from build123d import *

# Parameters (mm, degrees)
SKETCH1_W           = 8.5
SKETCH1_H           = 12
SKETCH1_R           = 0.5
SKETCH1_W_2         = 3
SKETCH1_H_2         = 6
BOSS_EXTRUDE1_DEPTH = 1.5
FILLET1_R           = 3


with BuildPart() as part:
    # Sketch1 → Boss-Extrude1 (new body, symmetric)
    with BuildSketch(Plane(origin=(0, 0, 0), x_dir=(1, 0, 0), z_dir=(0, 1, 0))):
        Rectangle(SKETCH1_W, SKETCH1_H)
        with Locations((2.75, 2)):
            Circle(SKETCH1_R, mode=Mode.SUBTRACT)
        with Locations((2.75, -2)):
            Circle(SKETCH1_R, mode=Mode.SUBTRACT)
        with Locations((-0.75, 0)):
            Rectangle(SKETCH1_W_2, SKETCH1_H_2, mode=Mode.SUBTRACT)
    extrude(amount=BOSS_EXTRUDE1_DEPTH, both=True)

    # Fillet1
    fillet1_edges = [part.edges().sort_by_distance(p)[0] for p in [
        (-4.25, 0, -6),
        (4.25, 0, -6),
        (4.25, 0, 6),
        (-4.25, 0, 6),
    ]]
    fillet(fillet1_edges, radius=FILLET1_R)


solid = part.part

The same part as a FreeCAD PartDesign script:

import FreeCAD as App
import Part
import Sketcher
Q = App.Units.Quantity


def edges_at(feature, points):
    """Names of the edges that pass closest to the given points."""
    edges = feature.Shape.Edges
    near = lambda p: min(range(len(edges)), key=lambda i: edges[i].distToShape(Part.Vertex(*p))[0])
    return sorted({f"Edge{near(p) + 1}" for p in points})

doc = App.newDocument("Part")
body = doc.addObject("PartDesign::Body", "Body")

sketch1 = body.newObject("Sketcher::SketchObject", "Sketch")
sketch1.AttachmentSupport = (doc.getObject("XZ_Plane"), [""])
sketch1.MapMode = "FlatFace"
sketch1.addGeometry(Part.LineSegment(App.Vector(-4.2, -6, 0), App.Vector(-4.2, 6, 0)), False)
sketch1.addGeometry(Part.LineSegment(App.Vector(-4.2, 6, 0), App.Vector(4.2, 6, 0)), False)
sketch1.addGeometry(Part.LineSegment(App.Vector(4.2, 6, 0), App.Vector(4.2, -6, 0)), False)
sketch1.addGeometry(Part.LineSegment(App.Vector(4.2, -6, 0), App.Vector(-4.2, -6, 0)), False)
sketch1.addGeometry(Part.Circle(App.Vector(2.8, 2, 0), App.Vector(0, 0, 1), 0.5), False)
sketch1.addGeometry(Part.LineSegment(App.Vector(0.8, 3, 0), App.Vector(-2.2, 3, 0)), False)
sketch1.addGeometry(Part.LineSegment(App.Vector(-2.2, 3, 0), App.Vector(-2.2, -3, 0)), False)
sketch1.addGeometry(Part.LineSegment(App.Vector(-2.2, -3, 0), App.Vector(0.8, -3, 0)), False)
sketch1.addGeometry(Part.LineSegment(App.Vector(0.8, -3, 0), App.Vector(0.8, 3, 0)), False)
sketch1.addGeometry(Part.Circle(App.Vector(2.8, -2, 0), App.Vector(0, 0, 1), 0.5), False)
sketch1.addConstraint(Sketcher.Constraint("Coincident", 0, 2, 1, 1))
sketch1.addConstraint(Sketcher.Constraint("Coincident", 1, 2, 2, 1))
sketch1.addConstraint(Sketcher.Constraint("Coincident", 2, 2, 3, 1))
sketch1.addConstraint(Sketcher.Constraint("Coincident", 3, 2, 0, 1))
sketch1.addConstraint(Sketcher.Constraint("Coincident", 5, 2, 6, 1))
sketch1.addConstraint(Sketcher.Constraint("Coincident", 6, 2, 7, 1))
sketch1.addConstraint(Sketcher.Constraint("Coincident", 7, 2, 8, 1))
sketch1.addConstraint(Sketcher.Constraint("Coincident", 8, 2, 5, 1))
sketch1.addConstraint(Sketcher.Constraint("Vertical", 0))
sketch1.addConstraint(Sketcher.Constraint("Horizontal", 1))
sketch1.addConstraint(Sketcher.Constraint("Vertical", 2))
sketch1.addConstraint(Sketcher.Constraint("Horizontal", 3))
sketch1.addConstraint(Sketcher.Constraint("Horizontal", 5))
sketch1.addConstraint(Sketcher.Constraint("Vertical", 6))
sketch1.addConstraint(Sketcher.Constraint("Horizontal", 7))
sketch1.addConstraint(Sketcher.Constraint("Vertical", 8))
sketch1.addConstraint(Sketcher.Constraint("Equal", 4, 9))
sketch1.addConstraint(Sketcher.Constraint("Symmetric", 0, 2, 2, 2, -1, 1))
sketch1.addConstraint(Sketcher.Constraint("Symmetric", 4, 3, 9, 3, -1))
sketch1.addConstraint(Sketcher.Constraint("Diameter", 4, Q("1 mm")))
sketch1.addConstraint(Sketcher.Constraint("DistanceX", 5, 2, 5, 1, Q("3 mm")))
sketch1.addConstraint(Sketcher.Constraint("DistanceY", 0, 1, 0, 2, Q("12 mm")))
sketch1.addConstraint(Sketcher.Constraint("DistanceY", 6, 2, 6, 1, Q("6 mm")))
sketch1.addConstraint(Sketcher.Constraint("DistanceX", 1, 1, 1, 2, Q("8.5 mm")))
sketch1.addConstraint(Sketcher.Constraint("DistanceY", -1, 1, 4, 3, Q("2 mm")))
sketch1.addConstraint(Sketcher.Constraint("DistanceY", -1, 1, 5, 2, Q("3 mm")))
sketch1.addConstraint(Sketcher.Constraint("DistanceX", 0, 2, 4, 3, Q("7 mm")))
sketch1.addConstraint(Sketcher.Constraint("DistanceX", 0, 2, 5, 2, Q("2 mm")))
pad1 = body.newObject("PartDesign::Pad", "Pad")
pad1.Profile = sketch1
pad1.Length = 3
pad1.Midplane = True
doc.recompute()

fillet = body.newObject("PartDesign::Fillet", "Fillet")
fillet.Base = (pad1, edges_at(pad1, [
    (-4.25, 0, -6),
    (4.25, 0, -6),
    (4.25, 0, 6),
    (-4.25, 0, 6),
]))
fillet.Radius = 3

doc.recompute()
